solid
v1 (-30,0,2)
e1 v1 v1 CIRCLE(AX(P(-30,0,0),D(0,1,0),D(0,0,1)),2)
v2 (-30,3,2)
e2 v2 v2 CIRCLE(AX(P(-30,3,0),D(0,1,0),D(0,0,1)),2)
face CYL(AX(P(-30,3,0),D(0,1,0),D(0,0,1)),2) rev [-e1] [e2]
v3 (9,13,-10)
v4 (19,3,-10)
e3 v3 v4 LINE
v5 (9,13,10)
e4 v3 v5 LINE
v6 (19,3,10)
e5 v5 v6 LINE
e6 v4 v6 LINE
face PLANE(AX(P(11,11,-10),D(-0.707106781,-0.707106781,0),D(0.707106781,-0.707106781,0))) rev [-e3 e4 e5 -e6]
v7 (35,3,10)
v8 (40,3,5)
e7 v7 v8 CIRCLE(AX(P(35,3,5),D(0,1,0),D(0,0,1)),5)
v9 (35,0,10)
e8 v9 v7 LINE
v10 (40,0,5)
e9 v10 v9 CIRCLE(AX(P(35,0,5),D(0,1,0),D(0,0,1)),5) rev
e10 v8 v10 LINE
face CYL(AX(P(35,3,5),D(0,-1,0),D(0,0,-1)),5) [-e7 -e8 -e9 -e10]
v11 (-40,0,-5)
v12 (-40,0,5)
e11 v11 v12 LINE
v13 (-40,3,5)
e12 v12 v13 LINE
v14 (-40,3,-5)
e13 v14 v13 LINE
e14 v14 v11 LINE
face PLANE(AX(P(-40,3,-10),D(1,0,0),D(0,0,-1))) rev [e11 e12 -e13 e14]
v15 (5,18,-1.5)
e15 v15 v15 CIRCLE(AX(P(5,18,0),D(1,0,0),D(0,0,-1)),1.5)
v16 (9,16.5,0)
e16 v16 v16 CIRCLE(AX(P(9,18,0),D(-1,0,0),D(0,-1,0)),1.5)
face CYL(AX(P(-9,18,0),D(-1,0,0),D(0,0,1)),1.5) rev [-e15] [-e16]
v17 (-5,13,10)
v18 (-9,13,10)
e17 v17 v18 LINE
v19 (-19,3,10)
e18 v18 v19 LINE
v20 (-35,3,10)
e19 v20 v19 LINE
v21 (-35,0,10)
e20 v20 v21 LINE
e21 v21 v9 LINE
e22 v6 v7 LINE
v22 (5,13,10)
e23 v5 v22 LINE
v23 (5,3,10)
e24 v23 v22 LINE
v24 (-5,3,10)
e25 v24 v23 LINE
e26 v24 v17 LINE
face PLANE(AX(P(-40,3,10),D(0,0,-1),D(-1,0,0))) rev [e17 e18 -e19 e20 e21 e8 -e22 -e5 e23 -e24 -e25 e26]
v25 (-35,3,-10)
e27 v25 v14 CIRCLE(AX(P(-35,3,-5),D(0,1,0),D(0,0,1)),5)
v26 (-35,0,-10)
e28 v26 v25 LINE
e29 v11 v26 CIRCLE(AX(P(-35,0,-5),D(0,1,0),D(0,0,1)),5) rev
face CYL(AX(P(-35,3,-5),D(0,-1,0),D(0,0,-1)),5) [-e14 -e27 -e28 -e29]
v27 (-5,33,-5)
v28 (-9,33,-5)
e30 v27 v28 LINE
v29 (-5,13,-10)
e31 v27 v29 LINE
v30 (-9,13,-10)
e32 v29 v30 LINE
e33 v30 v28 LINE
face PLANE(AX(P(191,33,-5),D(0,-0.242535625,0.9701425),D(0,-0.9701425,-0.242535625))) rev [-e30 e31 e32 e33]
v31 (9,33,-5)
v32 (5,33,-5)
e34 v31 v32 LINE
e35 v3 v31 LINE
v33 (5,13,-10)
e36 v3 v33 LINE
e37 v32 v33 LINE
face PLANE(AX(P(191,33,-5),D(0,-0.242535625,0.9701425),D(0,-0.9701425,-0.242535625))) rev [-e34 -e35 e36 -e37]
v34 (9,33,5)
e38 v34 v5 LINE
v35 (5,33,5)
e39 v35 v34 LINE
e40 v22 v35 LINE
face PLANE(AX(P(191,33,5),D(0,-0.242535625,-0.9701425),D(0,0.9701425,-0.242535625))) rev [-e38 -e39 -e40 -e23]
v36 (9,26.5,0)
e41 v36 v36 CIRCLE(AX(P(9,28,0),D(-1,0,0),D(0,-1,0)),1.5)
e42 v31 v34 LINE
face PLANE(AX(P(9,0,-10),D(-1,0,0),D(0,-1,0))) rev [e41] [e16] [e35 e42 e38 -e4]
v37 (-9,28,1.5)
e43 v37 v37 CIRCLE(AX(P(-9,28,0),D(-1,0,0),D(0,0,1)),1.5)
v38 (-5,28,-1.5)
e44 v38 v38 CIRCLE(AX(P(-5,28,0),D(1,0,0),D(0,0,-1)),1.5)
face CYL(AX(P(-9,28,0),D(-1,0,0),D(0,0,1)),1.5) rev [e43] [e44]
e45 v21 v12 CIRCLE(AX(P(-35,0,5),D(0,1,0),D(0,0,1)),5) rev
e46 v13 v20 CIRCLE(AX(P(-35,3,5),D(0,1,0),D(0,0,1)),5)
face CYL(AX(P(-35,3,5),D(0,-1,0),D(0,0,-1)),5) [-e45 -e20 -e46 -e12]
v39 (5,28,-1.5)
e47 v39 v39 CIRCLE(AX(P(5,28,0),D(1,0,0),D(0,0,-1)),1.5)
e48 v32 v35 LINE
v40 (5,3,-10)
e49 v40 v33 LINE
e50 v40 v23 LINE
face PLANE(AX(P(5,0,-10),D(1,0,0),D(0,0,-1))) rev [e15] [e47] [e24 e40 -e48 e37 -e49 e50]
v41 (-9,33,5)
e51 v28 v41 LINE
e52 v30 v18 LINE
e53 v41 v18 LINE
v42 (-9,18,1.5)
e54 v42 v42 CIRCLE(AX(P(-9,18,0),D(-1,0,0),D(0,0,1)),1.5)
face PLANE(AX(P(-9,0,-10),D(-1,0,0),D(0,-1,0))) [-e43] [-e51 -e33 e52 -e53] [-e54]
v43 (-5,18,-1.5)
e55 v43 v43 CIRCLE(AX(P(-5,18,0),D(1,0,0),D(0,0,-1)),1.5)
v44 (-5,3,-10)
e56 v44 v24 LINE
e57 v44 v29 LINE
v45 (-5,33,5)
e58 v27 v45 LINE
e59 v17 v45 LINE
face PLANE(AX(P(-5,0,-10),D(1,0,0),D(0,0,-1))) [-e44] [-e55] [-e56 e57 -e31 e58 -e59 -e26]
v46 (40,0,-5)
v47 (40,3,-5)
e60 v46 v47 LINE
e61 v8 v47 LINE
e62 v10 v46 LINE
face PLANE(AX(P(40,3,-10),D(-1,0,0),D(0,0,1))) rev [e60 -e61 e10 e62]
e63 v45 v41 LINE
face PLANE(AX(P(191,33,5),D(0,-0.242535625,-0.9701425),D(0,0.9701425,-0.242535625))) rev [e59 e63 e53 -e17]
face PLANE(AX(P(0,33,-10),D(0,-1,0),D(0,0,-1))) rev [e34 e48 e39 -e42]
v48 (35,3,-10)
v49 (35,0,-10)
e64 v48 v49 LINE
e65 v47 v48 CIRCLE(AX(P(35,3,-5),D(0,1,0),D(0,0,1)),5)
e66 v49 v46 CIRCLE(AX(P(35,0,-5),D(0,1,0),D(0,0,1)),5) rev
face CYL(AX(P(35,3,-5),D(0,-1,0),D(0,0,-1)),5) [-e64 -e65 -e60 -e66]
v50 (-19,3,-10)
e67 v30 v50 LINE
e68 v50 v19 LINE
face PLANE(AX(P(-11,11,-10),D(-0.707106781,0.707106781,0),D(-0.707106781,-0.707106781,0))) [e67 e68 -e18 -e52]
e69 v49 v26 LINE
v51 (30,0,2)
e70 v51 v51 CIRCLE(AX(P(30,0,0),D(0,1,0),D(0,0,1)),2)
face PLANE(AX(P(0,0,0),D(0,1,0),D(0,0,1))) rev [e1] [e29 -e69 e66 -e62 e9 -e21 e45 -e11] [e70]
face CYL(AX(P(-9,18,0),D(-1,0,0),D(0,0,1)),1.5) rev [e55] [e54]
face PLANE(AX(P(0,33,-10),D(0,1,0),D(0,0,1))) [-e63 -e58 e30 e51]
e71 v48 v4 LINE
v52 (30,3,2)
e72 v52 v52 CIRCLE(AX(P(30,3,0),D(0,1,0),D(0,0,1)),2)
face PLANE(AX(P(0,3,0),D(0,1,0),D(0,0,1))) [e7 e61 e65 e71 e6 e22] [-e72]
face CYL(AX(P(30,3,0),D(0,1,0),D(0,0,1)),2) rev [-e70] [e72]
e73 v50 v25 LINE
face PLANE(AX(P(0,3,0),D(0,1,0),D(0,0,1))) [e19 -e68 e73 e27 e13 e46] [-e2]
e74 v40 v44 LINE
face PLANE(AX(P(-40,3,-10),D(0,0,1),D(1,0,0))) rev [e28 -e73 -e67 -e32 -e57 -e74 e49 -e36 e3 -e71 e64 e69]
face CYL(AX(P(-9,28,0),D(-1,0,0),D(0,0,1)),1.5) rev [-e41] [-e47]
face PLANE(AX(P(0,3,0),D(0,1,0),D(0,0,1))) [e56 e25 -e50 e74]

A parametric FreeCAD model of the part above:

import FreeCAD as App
import Part
import Sketcher
from FreeCAD import Vector


def edges_at(feature, points):
    """Names of the edges that pass closest to the given points."""
    edges = feature.Shape.Edges
    near = lambda p: min(range(len(edges)), key=lambda i: edges[i].distToShape(Part.Vertex(*p))[0])
    return sorted({f"Edge{near(p) + 1}" for p in points})


def add_polygon(sketch, points):
    """Adds a closed chain of lines whose ends are joined by coincident constraints."""
    first, n = sketch.GeometryCount, len(points)
    for a, b in zip(points, points[1:] + points[:1]):
        sketch.addGeometry(Part.LineSegment(App.Vector(*a, 0), App.Vector(*b, 0)), False)
    for i in range(n):
        sketch.addConstraint(Sketcher.Constraint("Coincident", first + i, 2, first + (i + 1) % n, 1))

doc = App.newDocument("Part")
body = doc.addObject("PartDesign::Body", "Body")

# Sketch on XZ plane
sketch1 = doc.addObject("Sketcher::SketchObject", "Sketch")
body.addObject(sketch1)
sketch1.AttachmentSupport = (doc.XZ_Plane, [""])
sketch1.MapMode = "FlatFace"
add_polygon(sketch1, [(-40, -10), (-40, 10), (40, 10), (40, -10)])  # lines 0-3
sketch1.addConstraint(Sketcher.Constraint("Vertical", 0))
sketch1.addConstraint(Sketcher.Constraint("Horizontal", 1))
sketch1.addConstraint(Sketcher.Constraint("Vertical", 2))
sketch1.addConstraint(Sketcher.Constraint("Horizontal", 3))
sketch1.addConstraint(Sketcher.Constraint("Symmetric", 0, 2, 2, 2, -1, 1))
sketch1.addConstraint(Sketcher.Constraint("DistanceX", 1, 1, 1, 2, 80.0))
sketch1.addConstraint(Sketcher.Constraint("DistanceY", 0, 1, 0, 2, 20.0))
pad1 = doc.addObject("PartDesign::Pad", "Pad")
body.addObject(pad1)
pad1.Profile = sketch1
pad1.Length = 3
pad1.Reversed = True

# Sketch on XY plane
sketch2 = doc.addObject("Sketcher::SketchObject", "Sketch001")
body.addObject(sketch2)
sketch2.AttachmentSupport = (doc.XY_Plane, [""])
sketch2.MapMode = "FlatFace"
sketch2.AttachmentOffset = App.Placement(Vector(0, 0, 10), App.Rotation())
add_polygon(sketch2, [(-9, 13), (-19, 3), (-5, 3), (-5, 33), (-9, 33)])  # lines 0-4
sketch2.addConstraint(Sketcher.Constraint("Horizontal", 1))
sketch2.addConstraint(Sketcher.Constraint("Vertical", 2))
sketch2.addConstraint(Sketcher.Constraint("Horizontal", 3))
sketch2.addConstraint(Sketcher.Constraint("Vertical", 4))
sketch2.addConstraint(Sketcher.Constraint("DistanceX", 1, 1, 1, 2, 14.0))
sketch2.addConstraint(Sketcher.Constraint("DistanceX", 3, 2, 3, 1, 4.0))
sketch2.addConstraint(Sketcher.Constraint("DistanceY", 2, 1, 2, 2, 30.0))
sketch2.addConstraint(Sketcher.Constraint("DistanceY", 4, 2, 4, 1, 20.0))
sketch2.addConstraint(Sketcher.Constraint("DistanceX", 0, 2, -1, 1, 19.0))
sketch2.addConstraint(Sketcher.Constraint("DistanceY", -1, 1, 0, 2, 3.0))
pad2 = doc.addObject("PartDesign::Pad", "Pad001")
body.addObject(pad2)
pad2.Profile = sketch2
pad2.Length = 20
pad2.Reversed = True
doc.recompute()

mirrored = doc.addObject("PartDesign::Mirrored", "Mirrored")
body.addObject(mirrored)
mirrored.Originals = [pad2]
mirrored.MirrorPlane = (doc.YZ_Plane, [""])
body.Tip = mirrored

# Sketch on YZ plane
sketch3 = doc.addObject("Sketcher::SketchObject", "Sketch002")
body.addObject(sketch3)
sketch3.AttachmentSupport = (doc.YZ_Plane, [""])
sketch3.MapMode = "FlatFace"
sketch3.AttachmentOffset = App.Placement(Vector(0, 0, -9), App.Rotation())
sketch3.addGeometry(Part.Circle(Vector(28, 0, 0), Vector(0, 0, 1), 1.5), False)
sketch3.addGeometry(Part.Circle(Vector(18, 0, 0), Vector(0, 0, 1), 1.5), False)
sketch3.addConstraint(Sketcher.Constraint("Equal", 0, 1))
sketch3.addConstraint(Sketcher.Constraint("PointOnObject", 0, 3, -1))
sketch3.addConstraint(Sketcher.Constraint("PointOnObject", 1, 3, -1))
sketch3.addConstraint(Sketcher.Constraint("Diameter", 0, 3.0))
sketch3.addConstraint(Sketcher.Constraint("DistanceX", -1, 1, 0, 3, 28.0))
sketch3.addConstraint(Sketcher.Constraint("DistanceX", -1, 1, 1, 3, 18.0))
doc.recompute()
hole = doc.addObject("PartDesign::Hole", "Hole")
body.addObject(hole)
hole.Profile = sketch3
hole.ThreadType = "None"
hole.Diameter = 3
hole.DepthType = "ThroughAll"
hole.Reversed = True

# Sketch on XZ plane
sketch4 = doc.addObject("Sketcher::SketchObject", "Sketch003")
body.addObject(sketch4)
sketch4.AttachmentSupport = (doc.XZ_Plane, [""])
sketch4.MapMode = "FlatFace"
sketch4.AttachmentOffset = App.Placement(Vector(0, 0, -3), App.Rotation())
sketch4.addGeometry(Part.Circle(Vector(-30, 0, 0), Vector(0, 0, 1), 2), False)
sketch4.addGeometry(Part.Circle(Vector(30, 0, 0), Vector(0, 0, 1), 2), False)
sketch4.addConstraint(Sketcher.Constraint("Equal", 0, 1))
sketch4.addConstraint(Sketcher.Constraint("Symmetric", 0, 3, 1, 3, -1, 1))
sketch4.addConstraint(Sketcher.Constraint("PointOnObject", 0, 3, -1))
sketch4.addConstraint(Sketcher.Constraint("Diameter", 0, 4.0))
sketch4.addConstraint(Sketcher.Constraint("DistanceX", 0, 3, -1, 1, 30.0))
doc.recompute()
hole2 = doc.addObject("PartDesign::Hole", "Hole001")
body.addObject(hole2)
hole2.Profile = sketch4
hole2.ThreadType = "None"
hole2.Diameter = 4
hole2.DepthType = "ThroughAll"
hole2.Reversed = True

# Sketch on YZ plane
sketch5 = doc.addObject("Sketcher::SketchObject", "Sketch004")
body.addObject(sketch5)
sketch5.AttachmentSupport = (doc.YZ_Plane, [""])
sketch5.MapMode = "FlatFace"
sketch5.AttachmentOffset = App.Placement(Vector(0, 0, -9), App.Rotation())
add_polygon(sketch5, [(13, 10), (33, 10), (33, 5)])  # lines 0-2
add_polygon(sketch5, [(33, -10), (13, -10), (33, -5)])  # lines 3-5
sketch5.addConstraint(Sketcher.Constraint("Horizontal", 0))
sketch5.addConstraint(Sketcher.Constraint("Vertical", 1))
sketch5.addConstraint(Sketcher.Constraint("Horizontal", 3))
sketch5.addConstraint(Sketcher.Constraint("Vertical", 5))
sketch5.addConstraint(Sketcher.Constraint("Symmetric", 2, 2, 3, 2, -1))
sketch5.addConstraint(Sketcher.Constraint("Symmetric", 1, 2, 4, 2, -1))
sketch5.addConstraint(Sketcher.Constraint("DistanceX", 0, 1, 0, 2, 20.0))
sketch5.addConstraint(Sketcher.Constraint("DistanceY", 1, 2, 1, 1, 5.0))
sketch5.addConstraint(Sketcher.Constraint("DistanceX", -1, 1, 0, 2, 33.0))
sketch5.addConstraint(Sketcher.Constraint("DistanceY", -1, 1, 0, 2, 10.0))
pocket1 = doc.addObject("PartDesign::Pocket", "Pocket")
body.addObject(pocket1)
pocket1.Profile = sketch5
pocket1.Length = 200
pocket1.Reversed = True
doc.recompute()

fillet = doc.addObject("PartDesign::Fillet", "Fillet")
body.addObject(fillet)
fillet.Base = (pocket1, edges_at(pocket1, [
    (40, 1.5, -10),
    (40, 1.5, 10),
    (-40, 1.5, 10),
    (-40, 1.5, -10),
]))
fillet.Radius = 5

doc.recompute()
